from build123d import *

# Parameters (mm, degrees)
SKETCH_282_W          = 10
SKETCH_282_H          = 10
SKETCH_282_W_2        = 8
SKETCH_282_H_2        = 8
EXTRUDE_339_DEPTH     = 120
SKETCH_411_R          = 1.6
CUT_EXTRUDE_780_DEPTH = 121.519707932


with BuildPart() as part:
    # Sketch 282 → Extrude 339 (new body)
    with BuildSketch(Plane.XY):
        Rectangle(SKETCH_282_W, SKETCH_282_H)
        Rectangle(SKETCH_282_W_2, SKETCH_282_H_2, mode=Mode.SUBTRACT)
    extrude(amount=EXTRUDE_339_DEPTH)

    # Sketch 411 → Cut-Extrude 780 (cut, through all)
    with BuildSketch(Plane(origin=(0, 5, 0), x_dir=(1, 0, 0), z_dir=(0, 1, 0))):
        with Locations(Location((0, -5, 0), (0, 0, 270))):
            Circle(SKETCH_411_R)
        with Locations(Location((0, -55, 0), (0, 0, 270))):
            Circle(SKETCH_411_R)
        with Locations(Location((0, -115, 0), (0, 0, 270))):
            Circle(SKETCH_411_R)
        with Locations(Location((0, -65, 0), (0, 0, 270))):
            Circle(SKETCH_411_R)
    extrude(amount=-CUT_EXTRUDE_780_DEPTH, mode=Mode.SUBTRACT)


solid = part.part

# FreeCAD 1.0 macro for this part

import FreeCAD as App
import Part
import Sketcher


def add_polygon(sketch, points):
    """Adds a closed chain of lines whose ends are joined by coincident constraints."""
    first, n = sketch.GeometryCount, len(points)
    for a, b in zip(points, points[1:] + points[:1]):
        sketch.addGeometry(Part.LineSegment(App.Vector(*a, 0), App.Vector(*b, 0)), False)
    for i in range(n):
        sketch.addConstraint(Sketcher.Constraint("Coincident", first + i, 2, first + (i + 1) % n, 1))

doc = App.newDocument("Part")
body = doc.addObject("PartDesign::Body", "Body")

# Sketch on XY plane
sketch1 = body.newObject("Sketcher::SketchObject", "Sketch")
sketch1.AttachmentSupport = (doc.getObject("XY_Plane"), [""])
sketch1.MapMode = "FlatFace"
add_polygon(sketch1, [(-5, 5), (-5, -5), (5, -5), (5, 5)])  # lines 0-3
add_polygon(sketch1, [(4, -4), (-4, -4), (-4, 4), (4, 4)])  # lines 4-7
sketch1.addConstraint([
    Sketcher.Constraint("Vertical", 0),
    Sketcher.Constraint("Horizontal", 1),
    Sketcher.Constraint("Vertical", 2),
    Sketcher.Constraint("Horizontal", 3),
    Sketcher.Constraint("Horizontal", 4),
    Sketcher.Constraint("Vertical", 5),
    Sketcher.Constraint("Horizontal", 6),
    Sketcher.Constraint("Vertical", 7),
    Sketcher.Constraint("Symmetric", 0, 2, 2, 2, -1, 1),
    Sketcher.Constraint("Symmetric", 4, 2, 6, 2, -1, 1),
    Sketcher.Constraint("Equal", 3, 0),
    Sketcher.Constraint("Equal", 6, 5),
    Sketcher.Constraint("DistanceX", 1, 1, 1, 2, 10.0),
    Sketcher.Constraint("DistanceX", 4, 2, 4, 1, 8.0),
])
pad1 = body.newObject("PartDesign::Pad", "Pad")
pad1.Profile = sketch1
pad1.Length = 120

# Sketch on XZ plane
sketch2 = body.newObject("Sketcher::SketchObject", "Sketch001")
sketch2.AttachmentSupport = (doc.getObject("XZ_Plane"), [""])
sketch2.MapMode = "FlatFace"
sketch2.AttachmentOffset = App.Placement(App.Vector(0, 0, -5), App.Rotation())
sketch2.addGeometry([
    Part.Circle(App.Vector(0, 5, 0), App.Vector(0, 0, 1), 1.6),
    Part.Circle(App.Vector(0, 55, 0), App.Vector(0, 0, 1), 1.6),
    Part.Circle(App.Vector(0, 115, 0), App.Vector(0, 0, 1), 1.6),
    Part.Circle(App.Vector(0, 65, 0), App.Vector(0, 0, 1), 1.6),
], False)
sketch2.addConstraint([
    Sketcher.Constraint("Equal", 0, 1),
    Sketcher.Constraint("Equal", 1, 2),
    Sketcher.Constraint("Equal", 2, 3),
    Sketcher.Constraint("PointOnObject", 0, 3, -2),
    Sketcher.Constraint("PointOnObject", 1, 3, -2),
    Sketcher.Constraint("PointOnObject", 2, 3, -2),
    Sketcher.Constraint("PointOnObject", 3, 3, -2),
    Sketcher.Constraint("Diameter", 0, 3.2),
    Sketcher.Constraint("DistanceY", -1, 1, 0, 3, 5.0),
    Sketcher.Constraint("DistanceY", -1, 1, 1, 3, 55.0),
    Sketcher.Constraint("DistanceY", -1, 1, 2, 3, 115.0),
    Sketcher.Constraint("DistanceY", -1, 1, 3, 3, 65.0),
])
pocket1 = body.newObject("PartDesign::Pocket", "Pocket")
pocket1.Profile = sketch2
pocket1.Type = "ThroughAll"
pocket1.Reversed = True

doc.recompute()
